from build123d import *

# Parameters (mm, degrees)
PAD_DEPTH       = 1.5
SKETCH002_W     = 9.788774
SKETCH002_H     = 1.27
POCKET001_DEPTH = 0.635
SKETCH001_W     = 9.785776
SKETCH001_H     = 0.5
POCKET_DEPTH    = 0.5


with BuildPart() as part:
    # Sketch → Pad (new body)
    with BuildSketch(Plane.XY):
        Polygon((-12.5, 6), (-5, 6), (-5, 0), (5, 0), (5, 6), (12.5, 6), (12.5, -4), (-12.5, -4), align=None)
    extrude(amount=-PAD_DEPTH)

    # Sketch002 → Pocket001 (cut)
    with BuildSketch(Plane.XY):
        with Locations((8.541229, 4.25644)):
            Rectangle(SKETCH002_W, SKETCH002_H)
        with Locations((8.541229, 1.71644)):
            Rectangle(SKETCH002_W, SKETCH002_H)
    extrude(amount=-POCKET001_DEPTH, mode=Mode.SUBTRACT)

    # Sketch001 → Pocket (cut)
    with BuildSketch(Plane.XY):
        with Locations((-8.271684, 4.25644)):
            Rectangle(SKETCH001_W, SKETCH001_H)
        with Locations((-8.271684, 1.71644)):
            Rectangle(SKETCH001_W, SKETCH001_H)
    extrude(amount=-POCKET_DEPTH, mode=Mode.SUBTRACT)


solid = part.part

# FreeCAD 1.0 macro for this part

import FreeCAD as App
import Part
import Sketcher

doc = App.newDocument("Part")
body = doc.addObject("PartDesign::Body", "Body")

sketch1 = body.newObject("Sketcher::SketchObject", "Sketch")
sketch1.AttachmentSupport = (doc.getObject("XY_Plane"), [""])
sketch1.MapMode = "FlatFace"
sketch1.addGeometry(Part.LineSegment(App.Vector(-5, 6, 0), App.Vector(-12, 6, 0)), False)
sketch1.addGeometry(Part.LineSegment(App.Vector(-12, 6, 0), App.Vector(-12, -4, 0)), False)
sketch1.addGeometry(Part.LineSegment(App.Vector(-12, -4, 0), App.Vector(12, -4, 0)), False)
sketch1.addGeometry(Part.LineSegment(App.Vector(12, -4, 0), App.Vector(12, 6, 0)), False)
sketch1.addGeometry(Part.LineSegment(App.Vector(12, 6, 0), App.Vector(5, 6, 0)), False)
sketch1.addGeometry(Part.LineSegment(App.Vector(5, 6, 0), App.Vector(5, 0, 0)), False)
sketch1.addGeometry(Part.LineSegment(App.Vector(5, 0, 0), App.Vector(-5, 0, 0)), False)
sketch1.addGeometry(Part.LineSegment(App.Vector(-5, 0, 0), App.Vector(-5, 6, 0)), False)
sketch1.addConstraint(Sketcher.Constraint("Coincident", 0, 2, 1, 1))
sketch1.addConstraint(Sketcher.Constraint("Coincident", 1, 2, 2, 1))
sketch1.addConstraint(Sketcher.Constraint("Coincident", 2, 2, 3, 1))
sketch1.addConstraint(Sketcher.Constraint("Coincident", 3, 2, 4, 1))
sketch1.addConstraint(Sketcher.Constraint("Coincident", 4, 2, 5, 1))
sketch1.addConstraint(Sketcher.Constraint("Coincident", 5, 2, 6, 1))
sketch1.addConstraint(Sketcher.Constraint("Coincident", 6, 2, 7, 1))
sketch1.addConstraint(Sketcher.Constraint("Coincident", 7, 2, 0, 1))
sketch1.addConstraint(Sketcher.Constraint("Horizontal", 0))
sketch1.addConstraint(Sketcher.Constraint("Vertical", 1))
sketch1.addConstraint(Sketcher.Constraint("Horizontal", 2))
sketch1.addConstraint(Sketcher.Constraint("Vertical", 3))
sketch1.addConstraint(Sketcher.Constraint("Horizontal", 4))
sketch1.addConstraint(Sketcher.Constraint("Vertical", 5))
sketch1.addConstraint(Sketcher.Constraint("Horizontal", 6))
sketch1.addConstraint(Sketcher.Constraint("Vertical", 7))
sketch1.addConstraint(Sketcher.Constraint("Symmetric", 5, 2, 6, 2, -1, 1))
sketch1.addConstraint(Sketcher.Constraint("Symmetric", 0, 2, 3, 2, -2))
sketch1.addConstraint(Sketcher.Constraint("Equal", 6, 1))
sketch1.addConstraint(Sketcher.Constraint("DistanceX", 2, 1, 2, 2, 25.0))
sketch1.addConstraint(Sketcher.Constraint("DistanceX", 6, 2, 6, 1, 10.0))
sketch1.addConstraint(Sketcher.Constraint("DistanceY", 5, 2, 5, 1, 6.0))
pad1 = body.newObject("PartDesign::Pad", "Pad")
pad1.Profile = sketch1
pad1.Length = 1.5
pad1.Reversed = True

sketch2 = body.newObject("Sketcher::SketchObject", "Sketch001")
sketch2.AttachmentSupport = (doc.getObject("XY_Plane"), [""])
sketch2.MapMode = "FlatFace"
sketch2.addGeometry(Part.LineSegment(App.Vector(3.6, 4.9, 0), App.Vector(3.6, 3.6, 0)), False)
sketch2.addGeometry(Part.LineSegment(App.Vector(3.6, 3.6, 0), App.Vector(13.4, 3.6, 0)), False)
sketch2.addGeometry(Part.LineSegment(App.Vector(13.4, 3.6, 0), App.Vector(13.4, 4.9, 0)), False)
sketch2.addGeometry(Part.LineSegment(App.Vector(13.4, 4.9, 0), App.Vector(3.6, 4.9, 0)), False)
sketch2.addGeometry(Part.LineSegment(App.Vector(3.6, 2.4, 0), App.Vector(3.6, 1.1, 0)), False)
sketch2.addGeometry(Part.LineSegment(App.Vector(3.6, 1.1, 0), App.Vector(13.4, 1.1, 0)), False)
sketch2.addGeometry(Part.LineSegment(App.Vector(13.4, 1.1, 0), App.Vector(13.4, 2.4, 0)), False)
sketch2.addGeometry(Part.LineSegment(App.Vector(13.4, 2.4, 0), App.Vector(3.6, 2.4, 0)), False)
sketch2.addConstraint(Sketcher.Constraint("Coincident", 0, 2, 1, 1))
sketch2.addConstraint(Sketcher.Constraint("Coincident", 1, 2, 2, 1))
sketch2.addConstraint(Sketcher.Constraint("Coincident", 2, 2, 3, 1))
sketch2.addConstraint(Sketcher.Constraint("Coincident", 3, 2, 0, 1))
sketch2.addConstraint(Sketcher.Constraint("Coincident", 4, 2, 5, 1))
sketch2.addConstraint(Sketcher.Constraint("Coincident", 5, 2, 6, 1))
sketch2.addConstraint(Sketcher.Constraint("Coincident", 6, 2, 7, 1))
sketch2.addConstraint(Sketcher.Constraint("Coincident", 7, 2, 4, 1))
sketch2.addConstraint(Sketcher.Constraint("Vertical", 0))
sketch2.addConstraint(Sketcher.Constraint("Horizontal", 1))
sketch2.addConstraint(Sketcher.Constraint("Vertical", 2))
sketch2.addConstraint(Sketcher.Constraint("Horizontal", 3))
sketch2.addConstraint(Sketcher.Constraint("Vertical", 4))
sketch2.addConstraint(Sketcher.Constraint("Horizontal", 5))
sketch2.addConstraint(Sketcher.Constraint("Vertical", 6))
sketch2.addConstraint(Sketcher.Constraint("Horizontal", 7))
sketch2.addConstraint(Sketcher.Constraint("Vertical", 3, 2, 4, 2))
sketch2.addConstraint(Sketcher.Constraint("Vertical", 2, 2, 5, 2))
sketch2.addConstraint(Sketcher.Constraint("Equal", 2, 4))
sketch2.addConstraint(Sketcher.Constraint("DistanceY", 0, 2, 0, 1, 1.27))
sketch2.addConstraint(Sketcher.Constraint("DistanceY", 4, 2, 0, 2, 2.54))
sketch2.addConstraint(Sketcher.Constraint("DistanceX", 1, 1, 1, 2, 9.788774))
sketch2.addConstraint(Sketcher.Constraint("DistanceX", -1, 1, 0, 2, 3.646842))
sketch2.addConstraint(Sketcher.Constraint("DistanceY", -1, 1, 0, 2, 3.62144))
pocket1 = body.newObject("PartDesign::Pocket", "Pocket")
pocket1.Profile = sketch2
pocket1.Length = 0.635

sketch3 = body.newObject("Sketcher::SketchObject", "Sketch002")
sketch3.AttachmentSupport = (doc.getObject("XY_Plane"), [""])
sketch3.MapMode = "FlatFace"
sketch3.addGeometry(Part.LineSegment(App.Vector(-13.2, 4.5, 0), App.Vector(-13.2, 4, 0)), False)
sketch3.addGeometry(Part.LineSegment(App.Vector(-13.2, 4, 0), App.Vector(-3.4, 4, 0)), False)
sketch3.addGeometry(Part.LineSegment(App.Vector(-3.4, 4, 0), App.Vector(-3.4, 4.5, 0)), False)
sketch3.addGeometry(Part.LineSegment(App.Vector(-3.4, 4.5, 0), App.Vector(-13.2, 4.5, 0)), False)
sketch3.addGeometry(Part.LineSegment(App.Vector(-13.2, 2, 0), App.Vector(-13.2, 1.5, 0)), False)
sketch3.addGeometry(Part.LineSegment(App.Vector(-13.2, 1.5, 0), App.Vector(-3.4, 1.5, 0)), False)
sketch3.addGeometry(Part.LineSegment(App.Vector(-3.4, 1.5, 0), App.Vector(-3.4, 2, 0)), False)
sketch3.addGeometry(Part.LineSegment(App.Vector(-3.4, 2, 0), App.Vector(-13.2, 2, 0)), False)
sketch3.addConstraint(Sketcher.Constraint("Coincident", 0, 2, 1, 1))
sketch3.addConstraint(Sketcher.Constraint("Coincident", 1, 2, 2, 1))
sketch3.addConstraint(Sketcher.Constraint("Coincident", 2, 2, 3, 1))
sketch3.addConstraint(Sketcher.Constraint("Coincident", 3, 2, 0, 1))
sketch3.addConstraint(Sketcher.Constraint("Coincident", 4, 2, 5, 1))
sketch3.addConstraint(Sketcher.Constraint("Coincident", 5, 2, 6, 1))
sketch3.addConstraint(Sketcher.Constraint("Coincident", 6, 2, 7, 1))
sketch3.addConstraint(Sketcher.Constraint("Coincident", 7, 2, 4, 1))
sketch3.addConstraint(Sketcher.Constraint("Vertical", 0))
sketch3.addConstraint(Sketcher.Constraint("Horizontal", 1))
sketch3.addConstraint(Sketcher.Constraint("Vertical", 2))
sketch3.addConstraint(Sketcher.Constraint("Horizontal", 3))
sketch3.addConstraint(Sketcher.Constraint("Vertical", 4))
sketch3.addConstraint(Sketcher.Constraint("Horizontal", 5))
sketch3.addConstraint(Sketcher.Constraint("Vertical", 6))
sketch3.addConstraint(Sketcher.Constraint("Horizontal", 7))
sketch3.addConstraint(Sketcher.Constraint("Vertical", 3, 2, 4, 2))
sketch3.addConstraint(Sketcher.Constraint("Vertical", 2, 2, 5, 2))
sketch3.addConstraint(Sketcher.Constraint("Equal", 2, 4))
sketch3.addConstraint(Sketcher.Constraint("DistanceY", 0, 2, 0, 1, 0.5))
sketch3.addConstraint(Sketcher.Constraint("DistanceY", 4, 2, 0, 2, 2.54))
sketch3.addConstraint(Sketcher.Constraint("DistanceX", 1, 1, 1, 2, 9.785776))
sketch3.addConstraint(Sketcher.Constraint("DistanceY", -1, 1, 0, 2, 4.00644))
sketch3.addConstraint(Sketcher.Constraint("DistanceX", 0, 2, -1, 1, 13.164572))
pocket2 = body.newObject("PartDesign::Pocket", "Pocket001")
pocket2.Profile = sketch3
pocket2.Length = 0.5

doc.recompute()
